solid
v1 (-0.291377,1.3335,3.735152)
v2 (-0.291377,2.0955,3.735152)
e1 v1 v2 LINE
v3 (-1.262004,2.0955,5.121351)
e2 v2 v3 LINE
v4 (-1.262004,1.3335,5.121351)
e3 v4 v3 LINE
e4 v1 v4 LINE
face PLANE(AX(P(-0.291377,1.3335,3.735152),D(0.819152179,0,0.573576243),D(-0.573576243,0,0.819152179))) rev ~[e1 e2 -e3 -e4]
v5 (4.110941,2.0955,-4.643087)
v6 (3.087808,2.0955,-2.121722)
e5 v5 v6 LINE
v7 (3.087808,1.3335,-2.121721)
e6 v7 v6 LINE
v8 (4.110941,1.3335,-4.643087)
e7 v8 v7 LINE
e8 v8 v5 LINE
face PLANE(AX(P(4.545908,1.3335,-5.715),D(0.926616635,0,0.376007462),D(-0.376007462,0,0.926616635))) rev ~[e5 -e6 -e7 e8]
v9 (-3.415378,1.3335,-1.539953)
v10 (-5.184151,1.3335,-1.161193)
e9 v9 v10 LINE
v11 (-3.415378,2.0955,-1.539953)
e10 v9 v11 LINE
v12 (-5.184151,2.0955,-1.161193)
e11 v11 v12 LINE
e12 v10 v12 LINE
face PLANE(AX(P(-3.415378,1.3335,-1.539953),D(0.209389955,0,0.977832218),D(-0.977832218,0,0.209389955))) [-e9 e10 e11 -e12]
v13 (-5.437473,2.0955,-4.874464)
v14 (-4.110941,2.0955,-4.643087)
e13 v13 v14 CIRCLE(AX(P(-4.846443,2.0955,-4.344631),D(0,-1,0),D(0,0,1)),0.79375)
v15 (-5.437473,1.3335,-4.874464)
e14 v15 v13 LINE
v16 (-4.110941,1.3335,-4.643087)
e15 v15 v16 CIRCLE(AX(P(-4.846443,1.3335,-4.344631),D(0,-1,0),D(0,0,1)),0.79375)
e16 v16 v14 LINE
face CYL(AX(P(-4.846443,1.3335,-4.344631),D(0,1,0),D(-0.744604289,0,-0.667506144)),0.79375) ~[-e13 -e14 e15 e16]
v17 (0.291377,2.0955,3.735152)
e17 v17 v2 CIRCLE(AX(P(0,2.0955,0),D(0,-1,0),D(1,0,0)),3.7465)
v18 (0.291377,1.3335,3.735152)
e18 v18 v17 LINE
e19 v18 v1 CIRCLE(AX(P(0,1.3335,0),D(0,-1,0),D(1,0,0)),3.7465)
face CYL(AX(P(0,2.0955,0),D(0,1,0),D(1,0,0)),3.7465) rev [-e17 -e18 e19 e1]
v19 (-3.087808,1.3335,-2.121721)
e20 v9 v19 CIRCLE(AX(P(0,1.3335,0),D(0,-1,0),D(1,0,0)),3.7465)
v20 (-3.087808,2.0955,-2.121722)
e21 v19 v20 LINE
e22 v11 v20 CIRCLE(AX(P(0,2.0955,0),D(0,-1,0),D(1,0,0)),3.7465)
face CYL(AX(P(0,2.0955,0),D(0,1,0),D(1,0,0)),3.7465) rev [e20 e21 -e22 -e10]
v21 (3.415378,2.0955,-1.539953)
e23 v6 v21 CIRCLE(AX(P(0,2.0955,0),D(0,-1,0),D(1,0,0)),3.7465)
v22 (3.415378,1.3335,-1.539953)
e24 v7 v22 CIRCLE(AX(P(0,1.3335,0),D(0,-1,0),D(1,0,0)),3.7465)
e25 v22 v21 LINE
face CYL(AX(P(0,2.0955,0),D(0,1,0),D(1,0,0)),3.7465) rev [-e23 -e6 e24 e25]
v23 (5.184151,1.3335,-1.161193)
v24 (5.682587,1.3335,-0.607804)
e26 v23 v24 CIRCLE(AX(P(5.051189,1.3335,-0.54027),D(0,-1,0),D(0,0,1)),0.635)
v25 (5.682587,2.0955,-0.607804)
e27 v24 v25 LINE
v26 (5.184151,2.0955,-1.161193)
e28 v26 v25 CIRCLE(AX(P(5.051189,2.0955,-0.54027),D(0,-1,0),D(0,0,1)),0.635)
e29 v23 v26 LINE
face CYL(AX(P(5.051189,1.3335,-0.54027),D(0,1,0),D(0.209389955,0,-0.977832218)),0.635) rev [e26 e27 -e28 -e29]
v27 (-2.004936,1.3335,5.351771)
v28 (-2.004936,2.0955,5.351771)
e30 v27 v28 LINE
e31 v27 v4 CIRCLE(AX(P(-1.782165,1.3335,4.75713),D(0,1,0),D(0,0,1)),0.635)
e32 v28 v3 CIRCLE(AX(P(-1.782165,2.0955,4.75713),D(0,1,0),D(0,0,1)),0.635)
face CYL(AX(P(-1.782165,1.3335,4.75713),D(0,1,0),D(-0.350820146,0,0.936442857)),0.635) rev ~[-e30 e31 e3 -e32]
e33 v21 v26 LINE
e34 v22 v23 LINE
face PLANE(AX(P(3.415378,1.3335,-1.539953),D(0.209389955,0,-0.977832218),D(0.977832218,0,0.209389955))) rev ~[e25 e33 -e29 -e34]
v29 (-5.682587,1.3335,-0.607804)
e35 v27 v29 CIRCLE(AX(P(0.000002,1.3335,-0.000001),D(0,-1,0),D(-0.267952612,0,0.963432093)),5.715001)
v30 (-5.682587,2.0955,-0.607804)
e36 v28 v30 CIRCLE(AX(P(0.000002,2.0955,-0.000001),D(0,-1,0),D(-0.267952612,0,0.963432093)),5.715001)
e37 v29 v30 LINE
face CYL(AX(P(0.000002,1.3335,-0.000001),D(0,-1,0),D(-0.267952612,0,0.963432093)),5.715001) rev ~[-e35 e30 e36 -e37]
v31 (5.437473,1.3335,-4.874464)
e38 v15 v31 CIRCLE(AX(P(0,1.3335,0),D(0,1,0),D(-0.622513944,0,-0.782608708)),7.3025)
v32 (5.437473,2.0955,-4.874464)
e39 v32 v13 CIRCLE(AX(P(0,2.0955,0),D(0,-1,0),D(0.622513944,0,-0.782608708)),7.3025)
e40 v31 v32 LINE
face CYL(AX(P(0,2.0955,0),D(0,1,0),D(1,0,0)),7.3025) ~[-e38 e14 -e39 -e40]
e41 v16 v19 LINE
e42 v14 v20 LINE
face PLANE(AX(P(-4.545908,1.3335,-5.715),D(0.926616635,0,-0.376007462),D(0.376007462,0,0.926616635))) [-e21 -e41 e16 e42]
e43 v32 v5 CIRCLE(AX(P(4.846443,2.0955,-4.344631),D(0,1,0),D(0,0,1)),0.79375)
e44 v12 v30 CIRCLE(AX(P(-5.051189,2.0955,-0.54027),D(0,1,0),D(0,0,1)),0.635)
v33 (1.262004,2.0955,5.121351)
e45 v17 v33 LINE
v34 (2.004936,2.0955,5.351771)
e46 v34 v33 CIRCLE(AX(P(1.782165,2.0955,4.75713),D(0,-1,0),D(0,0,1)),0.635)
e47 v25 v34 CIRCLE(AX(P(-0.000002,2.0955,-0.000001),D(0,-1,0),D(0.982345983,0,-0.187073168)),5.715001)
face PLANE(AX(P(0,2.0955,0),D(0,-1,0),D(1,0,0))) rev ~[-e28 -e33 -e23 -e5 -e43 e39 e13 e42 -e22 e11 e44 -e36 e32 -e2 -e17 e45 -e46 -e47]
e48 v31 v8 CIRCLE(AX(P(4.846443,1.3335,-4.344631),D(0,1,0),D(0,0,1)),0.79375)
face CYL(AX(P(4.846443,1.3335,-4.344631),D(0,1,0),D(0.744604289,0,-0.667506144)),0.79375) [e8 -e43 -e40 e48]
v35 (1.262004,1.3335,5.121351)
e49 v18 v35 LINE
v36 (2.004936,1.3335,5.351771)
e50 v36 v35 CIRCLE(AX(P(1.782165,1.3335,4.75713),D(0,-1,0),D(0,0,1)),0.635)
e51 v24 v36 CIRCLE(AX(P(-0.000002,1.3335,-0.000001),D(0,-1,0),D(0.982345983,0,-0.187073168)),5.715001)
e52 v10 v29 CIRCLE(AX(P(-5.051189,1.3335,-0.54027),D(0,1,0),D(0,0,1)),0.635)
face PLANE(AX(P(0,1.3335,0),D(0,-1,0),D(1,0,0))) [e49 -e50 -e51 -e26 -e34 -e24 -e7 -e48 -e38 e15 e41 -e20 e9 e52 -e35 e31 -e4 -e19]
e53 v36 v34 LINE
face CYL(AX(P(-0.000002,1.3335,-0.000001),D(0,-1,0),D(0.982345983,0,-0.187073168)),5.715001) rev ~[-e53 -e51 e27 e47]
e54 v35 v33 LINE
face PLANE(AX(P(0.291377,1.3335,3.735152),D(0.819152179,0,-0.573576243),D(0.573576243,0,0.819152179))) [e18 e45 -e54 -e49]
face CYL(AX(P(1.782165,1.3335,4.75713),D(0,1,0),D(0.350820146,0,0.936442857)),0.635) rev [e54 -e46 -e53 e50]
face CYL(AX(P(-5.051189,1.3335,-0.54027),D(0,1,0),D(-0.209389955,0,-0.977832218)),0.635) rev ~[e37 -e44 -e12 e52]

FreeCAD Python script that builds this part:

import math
import FreeCAD as App
import Part
import Sketcher
from FreeCAD import Vector
Q = App.Units.Quantity


def edges_at(feature, points):
    """Names of the edges that pass closest to the given points."""
    edges = feature.Shape.Edges
    near = lambda p: min(range(len(edges)), key=lambda i: edges[i].distToShape(Part.Vertex(*p))[0])
    return sorted({f"Edge{near(p) + 1}" for p in points})

doc = App.newDocument("Part")
params = doc.addObject("Spreadsheet::Sheet", "Params")
for row, (alias, value) in enumerate([
    ("sketch1_diameter", "0.575 in"),
    ("sketch1_diameter2", "0.295 in"),
    ("pad1_length", "0.03 in"),
    ("sketch2_radius", "0.3 in"),
    ("sketch2_radius2", "0.225 in"),
    ("sketch2_length", "0.02 in"),
    ("fillet_radius", "0.03125 in"),
    ("fillet2_radius", "0.025 in"),
], start=1):
    params.set(f"A{row}", alias)
    params.set(f"B{row}", "=" + value)
    params.setAlias(f"B{row}", alias)

body = doc.addObject("PartDesign::Body", "Body")

sketch1 = body.newObject("Sketcher::SketchObject", "Sketch")
sketch1.AttachmentSupport = (doc.getObject("XZ_Plane"), [""])
sketch1.MapMode = "FlatFace"
sketch1.addGeometry([
    Part.Circle(Vector(0, 0, 0), Vector(0, 0, 1), 7.3),
    Part.Circle(Vector(0, 0, 0), Vector(0, 0, 1), 3.7),
], False)
sketch1.addConstraint([
    Sketcher.Constraint("Coincident", 0, 3, -1, 1),
    Sketcher.Constraint("Coincident", 1, 3, -1, 1),
    Sketcher.Constraint("Diameter", 0, Q("0.575 in")),
    Sketcher.Constraint("Diameter", 1, Q("0.295 in")),
])
sketch1.setExpression("Constraints[2]", "Params.sketch1_diameter")
sketch1.setExpression("Constraints[3]", "Params.sketch1_diameter2")
pad1 = body.newObject("PartDesign::Pad", "Pad")
pad1.Profile = sketch1
pad1.setExpression("Length", "Params.pad1_length")

sketch2 = body.newObject("Sketcher::SketchObject", "Sketch001")
sketch2.AttachmentSupport = (doc.getObject("XZ_Plane"), [""])
sketch2.MapMode = "FlatFace"
sketch2.AttachmentOffset = App.Placement(Vector(0, 0, 0.03 * 25.4), App.Rotation())
sketch2.addGeometry([
    Part.LineSegment(Vector(-3.09, -2.12, 0), Vector(-4.55, -5.71, 0)),
    Part.LineSegment(Vector(-4.55, -5.71, 0), Vector(-5.04, -5.71, 0)),
    Part.ArcOfCircle(Part.Circle(Vector(0, 0, 0), Vector(0, 0, 1), 7.62), math.radians(-131), math.radians(-49)),
    Part.LineSegment(Vector(5.04, -5.71, 0), Vector(4.55, -5.71, 0)),
    Part.LineSegment(Vector(4.55, -5.71, 0), Vector(3.09, -2.12, 0)),
    Part.LineSegment(Vector(3.09, -2.12, 0), Vector(2.9, -1.65, 0)),
    Part.LineSegment(Vector(2.9, -1.65, 0), Vector(3.42, -1.54, 0)),
    Part.LineSegment(Vector(3.42, -1.54, 0), Vector(5.61, -1.07, 0)),
    Part.ArcOfCircle(Part.Circle(Vector(0, 0, 0), Vector(0, 0, 1), 5.72), math.radians(-11), math.radians(74)),
    Part.LineSegment(Vector(1.53, 5.51, 0), Vector(0.29, 3.74, 0)),
    Part.LineSegment(Vector(0.29, 3.74, 0), Vector(0, 3.32, 0)),
    Part.LineSegment(Vector(0, 3.32, 0), Vector(-0.29, 3.74, 0)),
    Part.LineSegment(Vector(-0.29, 3.74, 0), Vector(-1.53, 5.51, 0)),
    Part.ArcOfCircle(Part.Circle(Vector(0, 0, 0), Vector(0, 0, 1), 5.72), math.radians(106), math.radians(191)),
    Part.LineSegment(Vector(-5.61, -1.07, 0), Vector(-3.42, -1.54, 0)),
    Part.LineSegment(Vector(-3.42, -1.54, 0), Vector(-2.9, -1.65, 0)),
    Part.LineSegment(Vector(-2.9, -1.65, 0), Vector(-3.09, -2.12, 0)),
], False)
sketch2.addConstraint([
    Sketcher.Constraint("Coincident", 0, 2, 1, 1),
    Sketcher.Constraint("Coincident", 1, 2, 2, 1),
    Sketcher.Constraint("Coincident", 2, 2, 3, 1),
    Sketcher.Constraint("Coincident", 3, 2, 4, 1),
    Sketcher.Constraint("Coincident", 4, 2, 5, 1),
    Sketcher.Constraint("Coincident", 5, 2, 6, 1),
    Sketcher.Constraint("Coincident", 6, 2, 7, 1),
    Sketcher.Constraint("Coincident", 7, 2, 8, 1),
    Sketcher.Constraint("Coincident", 8, 2, 9, 1),
    Sketcher.Constraint("Coincident", 9, 2, 10, 1),
    Sketcher.Constraint("Coincident", 10, 2, 11, 1),
    Sketcher.Constraint("Coincident", 11, 2, 12, 1),
    Sketcher.Constraint("Coincident", 12, 2, 13, 1),
    Sketcher.Constraint("Coincident", 13, 2, 14, 1),
    Sketcher.Constraint("Coincident", 14, 2, 15, 1),
    Sketcher.Constraint("Coincident", 15, 2, 16, 1),
    Sketcher.Constraint("Coincident", 16, 2, 0, 1),
    Sketcher.Constraint("Horizontal", 1),
    Sketcher.Constraint("Horizontal", 3),
    Sketcher.Constraint("Coincident", 2, 3, -1, 1),
    Sketcher.Constraint("Coincident", 8, 3, -1, 1),
    Sketcher.Constraint("Coincident", 13, 3, -1, 1),
    Sketcher.Constraint("Equal", 8, 13),
    Sketcher.Constraint("Symmetric", 0, 2, 3, 2, -2),
    Sketcher.Constraint("Symmetric", 9, 2, 11, 2, -2),
    Sketcher.Constraint("Symmetric", 6, 2, 14, 2, -2),
    Sketcher.Constraint("Symmetric", 5, 2, 15, 2, -2),
    Sketcher.Constraint("Symmetric", 4, 2, 16, 2, -2),
    Sketcher.Constraint("PointOnObject", 10, 2, -2),
    Sketcher.Constraint("Parallel", 4, 5),
    Sketcher.Constraint("Parallel", 6, 7),
    Sketcher.Constraint("Parallel", 9, 10),
    Sketcher.Constraint("Parallel", 11, 12),
    Sketcher.Constraint("Parallel", 14, 15),
    Sketcher.Constraint("Equal", 5, 10),
    Sketcher.Constraint("Radius", 2, Q("0.3 in")),
    Sketcher.Constraint("Angle", 9, Q("-124.999987 deg")),
    Sketcher.Constraint("Radius", 8, Q("0.225 in")),
    Sketcher.Constraint("Distance", 5, Q("0.02 in")),
    Sketcher.Constraint("DistanceY", 3, 2, 5, 2, Q("0.16 in")),
    Sketcher.Constraint("DistanceY", 0, 2, -1, 1, Q("0.225 in")),
    Sketcher.Constraint("DistanceX", 4, 2, 3, 2, Q("1.4581 mm")),
    Sketcher.Constraint("DistanceX", 8, 3, 5, 2, Q("2.896799 mm")),
    Sketcher.Constraint("DistanceX", 4, 2, 7, 2, Q("2.526299 mm")),
    Sketcher.Constraint("DistanceX", -1, 1, 6, 2, Q("3.415378 mm")),
    Sketcher.Constraint("DistanceX", -1, 1, 8, 2, Q("1.531348 mm")),
])
sketch2.setExpression("Constraints[35]", "Params.sketch2_radius")
sketch2.setExpression("Constraints[37]", "Params.sketch2_radius2")
sketch2.setExpression("Constraints[38]", "Params.sketch2_length")
pocket1 = body.newObject("PartDesign::Pocket", "Pocket")
pocket1.Profile = sketch2
pocket1.Type = "ThroughAll"
doc.recompute()

fillet = body.newObject("PartDesign::Fillet", "Fillet")
fillet.Base = (pocket1, edges_at(pocket1, [(-4.546, -0.381, -5.715), (4.546, -0.381, -5.715)]))
fillet.setExpression("Radius", "Params.fillet_radius")
doc.recompute()

fillet2 = body.newObject("PartDesign::Fillet", "Fillet001")
fillet2.Base = (fillet, edges_at(fillet, [
    (-5.614, -0.381, -1.069),
    (5.614, -0.381, -1.069),
    (-1.531, -0.381, 5.506),
    (1.531, -0.381, 5.506),
]))
fillet2.setExpression("Radius", "Params.fillet2_radius")
body2 = doc.addObject("PartDesign::Body", "Body001")
doc.recompute()

body.Placement = App.Placement(Vector(0, 2.0955, 0), App.Rotation(Vector(0, 0, 1), 0))
boolean = body2.newObject("PartDesign::Boolean", "Boolean")
boolean.Type = "Fuse"
boolean.addObjects([body])

doc.recompute()
